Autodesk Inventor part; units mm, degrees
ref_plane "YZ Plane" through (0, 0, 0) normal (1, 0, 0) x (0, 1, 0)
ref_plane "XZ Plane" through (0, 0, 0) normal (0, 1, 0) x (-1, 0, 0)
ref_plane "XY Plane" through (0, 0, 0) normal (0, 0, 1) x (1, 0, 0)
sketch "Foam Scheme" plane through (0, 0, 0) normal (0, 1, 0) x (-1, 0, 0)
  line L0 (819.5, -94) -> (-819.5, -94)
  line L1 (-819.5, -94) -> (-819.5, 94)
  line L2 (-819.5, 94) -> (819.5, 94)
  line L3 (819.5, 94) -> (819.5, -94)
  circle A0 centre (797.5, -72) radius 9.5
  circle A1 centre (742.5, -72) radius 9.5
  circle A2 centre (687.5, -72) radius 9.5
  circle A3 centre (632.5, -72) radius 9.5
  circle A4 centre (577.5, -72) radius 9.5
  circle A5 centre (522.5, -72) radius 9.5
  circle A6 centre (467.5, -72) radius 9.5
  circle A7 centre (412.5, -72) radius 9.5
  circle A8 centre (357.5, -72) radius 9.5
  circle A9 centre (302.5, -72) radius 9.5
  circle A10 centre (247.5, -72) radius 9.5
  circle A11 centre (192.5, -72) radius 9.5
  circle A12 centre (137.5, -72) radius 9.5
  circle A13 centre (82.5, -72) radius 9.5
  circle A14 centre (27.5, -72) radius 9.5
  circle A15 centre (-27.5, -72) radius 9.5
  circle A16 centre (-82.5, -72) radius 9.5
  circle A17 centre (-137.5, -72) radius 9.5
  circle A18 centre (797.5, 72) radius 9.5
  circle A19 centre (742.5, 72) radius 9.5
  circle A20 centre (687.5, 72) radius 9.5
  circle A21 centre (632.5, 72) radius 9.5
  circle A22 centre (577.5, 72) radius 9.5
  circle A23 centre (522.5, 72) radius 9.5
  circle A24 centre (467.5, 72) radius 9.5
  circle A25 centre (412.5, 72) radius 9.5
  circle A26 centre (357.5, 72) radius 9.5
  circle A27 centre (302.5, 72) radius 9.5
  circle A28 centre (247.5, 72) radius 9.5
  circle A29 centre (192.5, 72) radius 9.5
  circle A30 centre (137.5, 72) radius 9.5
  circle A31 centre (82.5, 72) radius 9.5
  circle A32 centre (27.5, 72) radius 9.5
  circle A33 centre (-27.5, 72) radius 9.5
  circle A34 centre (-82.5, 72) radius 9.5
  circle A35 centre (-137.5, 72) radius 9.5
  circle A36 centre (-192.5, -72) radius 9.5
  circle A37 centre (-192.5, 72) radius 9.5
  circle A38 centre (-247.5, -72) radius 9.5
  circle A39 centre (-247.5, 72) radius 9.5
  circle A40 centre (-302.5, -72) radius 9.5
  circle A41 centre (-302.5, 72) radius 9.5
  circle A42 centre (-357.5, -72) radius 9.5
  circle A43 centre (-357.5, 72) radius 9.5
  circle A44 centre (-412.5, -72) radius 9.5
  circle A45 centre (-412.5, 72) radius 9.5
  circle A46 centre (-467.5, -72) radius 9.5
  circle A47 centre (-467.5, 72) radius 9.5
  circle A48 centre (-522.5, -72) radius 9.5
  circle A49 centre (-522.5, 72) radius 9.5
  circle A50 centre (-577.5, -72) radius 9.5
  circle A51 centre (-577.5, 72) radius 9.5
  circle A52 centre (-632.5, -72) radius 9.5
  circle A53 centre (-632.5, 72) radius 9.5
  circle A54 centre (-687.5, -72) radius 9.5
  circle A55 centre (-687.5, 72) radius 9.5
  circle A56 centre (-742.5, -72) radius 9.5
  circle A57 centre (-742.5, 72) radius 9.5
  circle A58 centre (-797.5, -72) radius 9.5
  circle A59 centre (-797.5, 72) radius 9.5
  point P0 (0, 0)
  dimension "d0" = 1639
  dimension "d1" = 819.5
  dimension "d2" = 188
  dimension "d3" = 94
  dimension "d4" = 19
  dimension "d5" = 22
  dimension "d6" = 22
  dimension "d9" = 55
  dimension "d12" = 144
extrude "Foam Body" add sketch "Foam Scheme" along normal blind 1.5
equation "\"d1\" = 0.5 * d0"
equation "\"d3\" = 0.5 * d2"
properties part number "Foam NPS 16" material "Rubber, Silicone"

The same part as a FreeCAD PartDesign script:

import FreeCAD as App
import Part
import Sketcher

V = App.Vector
Q = App.Units.Quantity


def add_polygon(sketch, points):
    """Adds a closed chain of lines whose ends are joined by coincident constraints."""
    first, n = sketch.GeometryCount, len(points)
    for a, b in zip(points, points[1:] + points[:1]):
        sketch.addGeometry(Part.LineSegment(App.Vector(*a, 0), App.Vector(*b, 0)), False)
    for i in range(n):
        sketch.addConstraint(Sketcher.Constraint("Coincident", first + i, 2, first + (i + 1) % n, 1))

doc = App.newDocument("Part")
params = doc.addObject("Spreadsheet::Sheet", "Params")
for row, (alias, value) in enumerate([
    ("sketch1_diameter", "19 mm"),
    ("sketch1_width", "1639 mm"),
    ("sketch1_height", "188 mm"),
    ("pad1_length", "1.5 mm"),
], start=1):
    params.set(f"A{row}", alias)
    params.set(f"B{row}", "=" + value)
    params.setAlias(f"B{row}", alias)

body = doc.addObject("PartDesign::Body", "Body")

sketch1 = doc.addObject("Sketcher::SketchObject", "Sketch")
body.addObject(sketch1)
sketch1.AttachmentSupport = (doc.XZ_Plane, [""])
sketch1.MapMode = "FlatFace"
add_polygon(sketch1, [(820, -94), (-820, -94), (-820, 94), (820, 94)])
sketch1.addGeometry(Part.Circle(V(798, -72, 0), V(0, 0, 1), 10), False)
sketch1.addGeometry(Part.Circle(V(742, -72, 0), V(0, 0, 1), 10), False)
sketch1.addGeometry(Part.Circle(V(688, -72, 0), V(0, 0, 1), 10), False)
sketch1.addGeometry(Part.Circle(V(632, -72, 0), V(0, 0, 1), 10), False)
sketch1.addGeometry(Part.Circle(V(578, -72, 0), V(0, 0, 1), 10), False)
sketch1.addGeometry(Part.Circle(V(522, -72, 0), V(0, 0, 1), 10), False)
sketch1.addGeometry(Part.Circle(V(468, -72, 0), V(0, 0, 1), 10), False)
sketch1.addGeometry(Part.Circle(V(412, -72, 0), V(0, 0, 1), 10), False)
sketch1.addGeometry(Part.Circle(V(358, -72, 0), V(0, 0, 1), 10), False)
sketch1.addGeometry(Part.Circle(V(302, -72, 0), V(0, 0, 1), 10), False)
sketch1.addGeometry(Part.Circle(V(248, -72, 0), V(0, 0, 1), 10), False)
sketch1.addGeometry(Part.Circle(V(192, -72, 0), V(0, 0, 1), 10), False)
sketch1.addGeometry(Part.Circle(V(138, -72, 0), V(0, 0, 1), 10), False)
sketch1.addGeometry(Part.Circle(V(82, -72, 0), V(0, 0, 1), 10), False)
sketch1.addGeometry(Part.Circle(V(28, -72, 0), V(0, 0, 1), 10), False)
sketch1.addGeometry(Part.Circle(V(-28, -72, 0), V(0, 0, 1), 10), False)
sketch1.addGeometry(Part.Circle(V(-82, -72, 0), V(0, 0, 1), 10), False)
sketch1.addGeometry(Part.Circle(V(-138, -72, 0), V(0, 0, 1), 10), False)
sketch1.addGeometry(Part.Circle(V(-192, -72, 0), V(0, 0, 1), 10), False)
sketch1.addGeometry(Part.Circle(V(-248, -72, 0), V(0, 0, 1), 10), False)
sketch1.addGeometry(Part.Circle(V(-302, -72, 0), V(0, 0, 1), 10), False)
sketch1.addGeometry(Part.Circle(V(-358, -72, 0), V(0, 0, 1), 10), False)
sketch1.addGeometry(Part.Circle(V(-412, -72, 0), V(0, 0, 1), 10), False)
sketch1.addGeometry(Part.Circle(V(-468, -72, 0), V(0, 0, 1), 10), False)
sketch1.addGeometry(Part.Circle(V(-522, -72, 0), V(0, 0, 1), 10), False)
sketch1.addGeometry(Part.Circle(V(-578, -72, 0), V(0, 0, 1), 10), False)
sketch1.addGeometry(Part.Circle(V(-632, -72, 0), V(0, 0, 1), 10), False)
sketch1.addGeometry(Part.Circle(V(-688, -72, 0), V(0, 0, 1), 10), False)
sketch1.addGeometry(Part.Circle(V(-742, -72, 0), V(0, 0, 1), 10), False)
sketch1.addGeometry(Part.Circle(V(-798, -72, 0), V(0, 0, 1), 10), False)
sketch1.addGeometry(Part.Circle(V(798, 72, 0), V(0, 0, 1), 10), False)
sketch1.addGeometry(Part.Circle(V(742, 72, 0), V(0, 0, 1), 10), False)
sketch1.addGeometry(Part.Circle(V(688, 72, 0), V(0, 0, 1), 10), False)
sketch1.addGeometry(Part.Circle(V(632, 72, 0), V(0, 0, 1), 10), False)
sketch1.addGeometry(Part.Circle(V(578, 72, 0), V(0, 0, 1), 10), False)
sketch1.addGeometry(Part.Circle(V(522, 72, 0), V(0, 0, 1), 10), False)
sketch1.addGeometry(Part.Circle(V(468, 72, 0), V(0, 0, 1), 10), False)
sketch1.addGeometry(Part.Circle(V(412, 72, 0), V(0, 0, 1), 10), False)
sketch1.addGeometry(Part.Circle(V(358, 72, 0), V(0, 0, 1), 10), False)
sketch1.addGeometry(Part.Circle(V(302, 72, 0), V(0, 0, 1), 10), False)
sketch1.addGeometry(Part.Circle(V(248, 72, 0), V(0, 0, 1), 10), False)
sketch1.addGeometry(Part.Circle(V(192, 72, 0), V(0, 0, 1), 10), False)
sketch1.addGeometry(Part.Circle(V(138, 72, 0), V(0, 0, 1), 10), False)
sketch1.addGeometry(Part.Circle(V(82, 72, 0), V(0, 0, 1), 10), False)
sketch1.addGeometry(Part.Circle(V(28, 72, 0), V(0, 0, 1), 10), False)
sketch1.addGeometry(Part.Circle(V(-28, 72, 0), V(0, 0, 1), 10), False)
sketch1.addGeometry(Part.Circle(V(-82, 72, 0), V(0, 0, 1), 10), False)
sketch1.addGeometry(Part.Circle(V(-138, 72, 0), V(0, 0, 1), 10), False)
sketch1.addGeometry(Part.Circle(V(-192, 72, 0), V(0, 0, 1), 10), False)
sketch1.addGeometry(Part.Circle(V(-248, 72, 0), V(0, 0, 1), 10), False)
sketch1.addGeometry(Part.Circle(V(-302, 72, 0), V(0, 0, 1), 10), False)
sketch1.addGeometry(Part.Circle(V(-358, 72, 0), V(0, 0, 1), 10), False)
sketch1.addGeometry(Part.Circle(V(-412, 72, 0), V(0, 0, 1), 10), False)
sketch1.addGeometry(Part.Circle(V(-468, 72, 0), V(0, 0, 1), 10), False)
sketch1.addGeometry(Part.Circle(V(-522, 72, 0), V(0, 0, 1), 10), False)
sketch1.addGeometry(Part.Circle(V(-578, 72, 0), V(0, 0, 1), 10), False)
sketch1.addGeometry(Part.Circle(V(-632, 72, 0), V(0, 0, 1), 10), False)
sketch1.addGeometry(Part.Circle(V(-688, 72, 0), V(0, 0, 1), 10), False)
sketch1.addGeometry(Part.Circle(V(-742, 72, 0), V(0, 0, 1), 10), False)
sketch1.addGeometry(Part.Circle(V(-798, 72, 0), V(0, 0, 1), 10), False)
sketch1.addConstraint([
    Sketcher.Constraint("Horizontal", 0),
    Sketcher.Constraint("Vertical", 1),
    Sketcher.Constraint("Horizontal", 2),
    Sketcher.Constraint("Vertical", 3),
    Sketcher.Constraint("Equal", 4, 5),
    Sketcher.Constraint("Equal", 5, 6),
    Sketcher.Constraint("Equal", 6, 7),
    Sketcher.Constraint("Equal", 7, 8),
    Sketcher.Constraint("Equal", 8, 9),
    Sketcher.Constraint("Equal", 9, 10),
    Sketcher.Constraint("Equal", 10, 11),
    Sketcher.Constraint("Equal", 11, 12),
    Sketcher.Constraint("Equal", 12, 13),
    Sketcher.Constraint("Equal", 13, 14),
    Sketcher.Constraint("Equal", 14, 15),
    Sketcher.Constraint("Equal", 15, 16),
    Sketcher.Constraint("Equal", 16, 17),
    Sketcher.Constraint("Equal", 17, 18),
    Sketcher.Constraint("Equal", 18, 19),
    Sketcher.Constraint("Equal", 19, 20),
    Sketcher.Constraint("Equal", 20, 21),
    Sketcher.Constraint("Equal", 21, 22),
    Sketcher.Constraint("Equal", 22, 23),
    Sketcher.Constraint("Equal", 23, 24),
    Sketcher.Constraint("Equal", 24, 25),
    Sketcher.Constraint("Equal", 25, 26),
    Sketcher.Constraint("Equal", 26, 27),
    Sketcher.Constraint("Equal", 27, 28),
    Sketcher.Constraint("Equal", 28, 29),
    Sketcher.Constraint("Equal", 29, 30),
    Sketcher.Constraint("Equal", 30, 31),
    Sketcher.Constraint("Equal", 31, 32),
    Sketcher.Constraint("Equal", 32, 33),
    Sketcher.Constraint("Equal", 33, 34),
    Sketcher.Constraint("Equal", 34, 35),
    Sketcher.Constraint("Equal", 35, 36),
    Sketcher.Constraint("Equal", 36, 37),
    Sketcher.Constraint("Equal", 37, 38),
    Sketcher.Constraint("Equal", 38, 39),
    Sketcher.Constraint("Equal", 39, 40),
    Sketcher.Constraint("Equal", 40, 41),
    Sketcher.Constraint("Equal", 41, 42),
    Sketcher.Constraint("Equal", 42, 43),
    Sketcher.Constraint("Equal", 43, 44),
    Sketcher.Constraint("Equal", 44, 45),
    Sketcher.Constraint("Equal", 45, 46),
    Sketcher.Constraint("Equal", 46, 47),
    Sketcher.Constraint("Equal", 47, 48),
    Sketcher.Constraint("Equal", 48, 49),
    Sketcher.Constraint("Equal", 49, 50),
    Sketcher.Constraint("Equal", 50, 51),
    Sketcher.Constraint("Equal", 51, 52),
    Sketcher.Constraint("Equal", 52, 53),
    Sketcher.Constraint("Equal", 53, 54),
    Sketcher.Constraint("Equal", 54, 55),
    Sketcher.Constraint("Equal", 55, 56),
    Sketcher.Constraint("Equal", 56, 57),
    Sketcher.Constraint("Equal", 57, 58),
    Sketcher.Constraint("Equal", 58, 59),
    Sketcher.Constraint("Equal", 59, 60),
    Sketcher.Constraint("Equal", 60, 61),
    Sketcher.Constraint("Equal", 61, 62),
    Sketcher.Constraint("Equal", 62, 63),
    Sketcher.Constraint("Symmetric", 33, 3, 34, 3, -1, 1),
    Sketcher.Constraint("Symmetric", 32, 3, 35, 3, -1, 1),
    Sketcher.Constraint("Symmetric", 31, 3, 36, 3, -1, 1),
    Sketcher.Constraint("Symmetric", 30, 3, 37, 3, -1, 1),
    Sketcher.Constraint("Symmetric", 29, 3, 38, 3, -1, 1),
    Sketcher.Constraint("Symmetric", 28, 3, 39, 3, -1, 1),
    Sketcher.Constraint("Symmetric", 27, 3, 40, 3, -1, 1),
    Sketcher.Constraint("Symmetric", 26, 3, 41, 3, -1, 1),
    Sketcher.Constraint("Symmetric", 25, 3, 42, 3, -1, 1),
    Sketcher.Constraint("Symmetric", 24, 3, 43, 3, -1, 1),
    Sketcher.Constraint("Symmetric", 23, 3, 44, 3, -1, 1),
    Sketcher.Constraint("Symmetric", 22, 3, 45, 3, -1, 1),
    Sketcher.Constraint("Symmetric", 21, 3, 46, 3, -1, 1),
    Sketcher.Constraint("Symmetric", 20, 3, 47, 3, -1, 1),
    Sketcher.Constraint("Symmetric", 19, 3, 48, 3, -1, 1),
    Sketcher.Constraint("Symmetric", 18, 3, 49, 3, -1, 1),
    Sketcher.Constraint("Symmetric", 17, 3, 50, 3, -1, 1),
    Sketcher.Constraint("Symmetric", 16, 3, 51, 3, -1, 1),
    Sketcher.Constraint("Symmetric", 15, 3, 52, 3, -1, 1),
    Sketcher.Constraint("Symmetric", 14, 3, 53, 3, -1, 1),
    Sketcher.Constraint("Symmetric", 13, 3, 54, 3, -1, 1),
    Sketcher.Constraint("Symmetric", 12, 3, 55, 3, -1, 1),
    Sketcher.Constraint("Symmetric", 11, 3, 56, 3, -1, 1),
    Sketcher.Constraint("Symmetric", 10, 3, 57, 3, -1, 1),
    Sketcher.Constraint("Symmetric", 9, 3, 58, 3, -1, 1),
    Sketcher.Constraint("Symmetric", 8, 3, 59, 3, -1, 1),
    Sketcher.Constraint("Symmetric", 7, 3, 60, 3, -1, 1),
    Sketcher.Constraint("Symmetric", 6, 3, 61, 3, -1, 1),
    Sketcher.Constraint("Symmetric", 5, 3, 62, 3, -1, 1),
    Sketcher.Constraint("Symmetric", 4, 3, 63, 3, -1, 1),
    Sketcher.Constraint("Symmetric", 0, 2, 2, 2, -1, 1),
    Sketcher.Constraint("Symmetric", 18, 3, 19, 3, -2),
    Sketcher.Constraint("Symmetric", 17, 3, 20, 3, -2),
    Sketcher.Constraint("Symmetric", 16, 3, 21, 3, -2),
    Sketcher.Constraint("Symmetric", 15, 3, 22, 3, -2),
    Sketcher.Constraint("Symmetric", 14, 3, 23, 3, -2),
    Sketcher.Constraint("Symmetric", 13, 3, 24, 3, -2),
    Sketcher.Constraint("Symmetric", 12, 3, 25, 3, -2),
    Sketcher.Constraint("Symmetric", 11, 3, 26, 3, -2),
    Sketcher.Constraint("Symmetric", 10, 3, 27, 3, -2),
    Sketcher.Constraint("Symmetric", 9, 3, 28, 3, -2),
    Sketcher.Constraint("Symmetric", 8, 3, 29, 3, -2),
    Sketcher.Constraint("Symmetric", 7, 3, 30, 3, -2),
    Sketcher.Constraint("Symmetric", 6, 3, 31, 3, -2),
    Sketcher.Constraint("Symmetric", 5, 3, 32, 3, -2),
    Sketcher.Constraint("Symmetric", 4, 3, 33, 3, -2),
    Sketcher.Constraint("Horizontal", 4, 3, 5, 3),
    Sketcher.Constraint("Horizontal", 5, 3, 6, 3),
    Sketcher.Constraint("Horizontal", 6, 3, 7, 3),
    Sketcher.Constraint("Horizontal", 7, 3, 8, 3),
    Sketcher.Constraint("Horizontal", 8, 3, 9, 3),
    Sketcher.Constraint("Horizontal", 9, 3, 10, 3),
    Sketcher.Constraint("Horizontal", 10, 3, 11, 3),
    Sketcher.Constraint("Horizontal", 11, 3, 12, 3),
    Sketcher.Constraint("Horizontal", 12, 3, 13, 3),
    Sketcher.Constraint("Horizontal", 13, 3, 14, 3),
    Sketcher.Constraint("Horizontal", 14, 3, 15, 3),
    Sketcher.Constraint("Horizontal", 15, 3, 16, 3),
    Sketcher.Constraint("Horizontal", 16, 3, 17, 3),
    Sketcher.Constraint("Horizontal", 17, 3, 18, 3),
    Sketcher.Constraint("Diameter", 4, Q("19 mm")),
    Sketcher.Constraint("DistanceX", 0, 2, 0, 1, Q("1639 mm")),
    Sketcher.Constraint("DistanceY", 1, 1, 1, 2, Q("188 mm")),
    Sketcher.Constraint("DistanceY", 4, 3, -1, 1, Q("72 mm")),
    Sketcher.Constraint("DistanceX", -1, 1, 4, 3, Q("797.5 mm")),
    Sketcher.Constraint("DistanceX", -1, 1, 5, 3, Q("742.5 mm")),
    Sketcher.Constraint("DistanceX", -1, 1, 6, 3, Q("687.5 mm")),
    Sketcher.Constraint("DistanceX", -1, 1, 7, 3, Q("632.5 mm")),
    Sketcher.Constraint("DistanceX", -1, 1, 8, 3, Q("577.5 mm")),
    Sketcher.Constraint("DistanceX", -1, 1, 9, 3, Q("522.5 mm")),
    Sketcher.Constraint("DistanceX", -1, 1, 10, 3, Q("467.5 mm")),
    Sketcher.Constraint("DistanceX", -1, 1, 11, 3, Q("412.5 mm")),
    Sketcher.Constraint("DistanceX", -1, 1, 12, 3, Q("357.5 mm")),
    Sketcher.Constraint("DistanceX", -1, 1, 13, 3, Q("302.5 mm")),
    Sketcher.Constraint("DistanceX", -1, 1, 14, 3, Q("247.5 mm")),
    Sketcher.Constraint("DistanceX", -1, 1, 15, 3, Q("192.5 mm")),
    Sketcher.Constraint("DistanceX", -1, 1, 16, 3, Q("137.5 mm")),
    Sketcher.Constraint("DistanceX", -1, 1, 17, 3, Q("82.5 mm")),
    Sketcher.Constraint("DistanceX", -1, 1, 18, 3, Q("27.5 mm")),
])
sketch1.setExpression("Constraints[127]", "Params.sketch1_diameter")
sketch1.setExpression("Constraints[128]", "Params.sketch1_width")
sketch1.setExpression("Constraints[129]", "Params.sketch1_height")
pad1 = doc.addObject("PartDesign::Pad", "Pad")
body.addObject(pad1)
pad1.Profile = sketch1
pad1.setExpression("Length", "Params.pad1_length")
pad1.Reversed = True

doc.recompute()
